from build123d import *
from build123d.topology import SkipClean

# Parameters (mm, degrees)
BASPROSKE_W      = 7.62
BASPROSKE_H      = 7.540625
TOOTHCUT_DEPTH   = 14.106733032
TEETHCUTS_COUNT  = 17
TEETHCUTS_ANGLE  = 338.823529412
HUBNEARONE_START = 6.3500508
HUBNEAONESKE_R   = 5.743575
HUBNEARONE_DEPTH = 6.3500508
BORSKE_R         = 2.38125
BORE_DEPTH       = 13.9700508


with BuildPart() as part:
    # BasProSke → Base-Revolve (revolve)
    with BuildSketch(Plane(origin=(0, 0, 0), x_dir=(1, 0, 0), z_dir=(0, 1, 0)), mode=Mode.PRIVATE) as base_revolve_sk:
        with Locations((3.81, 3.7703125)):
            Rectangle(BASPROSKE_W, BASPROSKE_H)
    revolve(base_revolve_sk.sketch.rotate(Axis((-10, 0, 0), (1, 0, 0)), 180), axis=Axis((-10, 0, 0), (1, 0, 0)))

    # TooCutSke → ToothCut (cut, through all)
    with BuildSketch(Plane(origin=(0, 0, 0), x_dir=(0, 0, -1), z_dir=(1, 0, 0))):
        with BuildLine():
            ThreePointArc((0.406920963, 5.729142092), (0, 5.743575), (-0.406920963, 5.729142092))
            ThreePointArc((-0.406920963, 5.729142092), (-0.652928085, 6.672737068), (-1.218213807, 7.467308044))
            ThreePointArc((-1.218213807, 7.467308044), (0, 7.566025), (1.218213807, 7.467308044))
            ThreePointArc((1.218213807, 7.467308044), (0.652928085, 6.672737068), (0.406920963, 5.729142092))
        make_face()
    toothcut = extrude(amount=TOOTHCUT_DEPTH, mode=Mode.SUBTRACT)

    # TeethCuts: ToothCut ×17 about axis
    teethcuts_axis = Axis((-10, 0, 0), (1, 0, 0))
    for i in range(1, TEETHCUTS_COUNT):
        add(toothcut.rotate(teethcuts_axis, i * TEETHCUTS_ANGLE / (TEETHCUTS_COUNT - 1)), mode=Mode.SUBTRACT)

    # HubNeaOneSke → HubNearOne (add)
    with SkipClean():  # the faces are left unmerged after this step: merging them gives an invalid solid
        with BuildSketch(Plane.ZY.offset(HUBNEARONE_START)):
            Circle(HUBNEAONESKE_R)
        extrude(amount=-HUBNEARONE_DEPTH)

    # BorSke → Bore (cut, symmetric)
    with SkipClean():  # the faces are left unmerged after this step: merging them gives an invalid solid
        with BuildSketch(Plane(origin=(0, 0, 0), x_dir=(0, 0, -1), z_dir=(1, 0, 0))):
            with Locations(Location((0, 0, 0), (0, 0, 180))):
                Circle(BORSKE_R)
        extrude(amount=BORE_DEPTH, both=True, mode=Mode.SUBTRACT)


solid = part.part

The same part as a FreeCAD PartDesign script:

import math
import FreeCAD as App
import Part
import Sketcher
Q = App.Units.Quantity


def add_polygon(sketch, points):
    """Adds a closed chain of lines whose ends are joined by coincident constraints."""
    first, n = sketch.GeometryCount, len(points)
    for a, b in zip(points, points[1:] + points[:1]):
        sketch.addGeometry(Part.LineSegment(App.Vector(*a, 0), App.Vector(*b, 0)), False)
    for i in range(n):
        sketch.addConstraint(Sketcher.Constraint("Coincident", first + i, 2, first + (i + 1) % n, 1))

doc = App.newDocument("Part")
body = doc.addObject("PartDesign::Body", "Body")

sketch1 = body.newObject("Sketcher::SketchObject", "Sketch")
sketch1.AttachmentSupport = (doc.getObject("XZ_Plane"), [""])
sketch1.MapMode = "FlatFace"
add_polygon(sketch1, [(0, -8), (0, 0), (8, 0), (8, -8)])
sketch1.addConstraint([
    Sketcher.Constraint("Vertical", 0),
    Sketcher.Constraint("Horizontal", 1),
    Sketcher.Constraint("Vertical", 2),
    Sketcher.Constraint("Horizontal", 3),
    Sketcher.Constraint("Coincident", 0, 2, -1, 1),
    Sketcher.Constraint("DistanceX", 1, 1, 1, 2, Q("0.3 in")),
    Sketcher.Constraint("DistanceY", 0, 1, 0, 2, Q("0.296875 in")),
])
revolution = body.newObject("PartDesign::Revolution", "Revolution")
revolution.Profile = sketch1
revolution.ReferenceAxis = (sketch1, ["H_Axis"])
revolution.Angle = 360

sketch2 = body.newObject("Sketcher::SketchObject", "Sketch001")
sketch2.AttachmentSupport = (doc.getObject("YZ_Plane"), [""])
sketch2.MapMode = "FlatFace"
sketch2.addGeometry([
    Part.ArcOfCircle(Part.Circle(App.Vector(0, 0, 0), App.Vector(0, 0, 1), 5.7), math.radians(-4.06), math.radians(4.06)),
    Part.ArcOfCircle(Part.Circle(App.Vector(5.5, -3.1, 0), App.Vector(0, 0, 1), 2.7), math.radians(44), math.radians(86)),
    Part.ArcOfCircle(Part.Circle(App.Vector(0, 0, 0), App.Vector(0, 0, 1), 7.6), math.radians(-9.27), math.radians(9.27)),
    Part.ArcOfCircle(Part.Circle(App.Vector(5.5, 3.1, 0), App.Vector(0, 0, 1), 2.7), math.radians(-86), math.radians(-44)),
], False)
sketch2.addConstraint([
    Sketcher.Constraint("Coincident", 0, 1, 1, 2),
    Sketcher.Constraint("Coincident", 1, 1, 2, 1),
    Sketcher.Constraint("Coincident", 2, 2, 3, 2),
    Sketcher.Constraint("Coincident", 3, 1, 0, 2),
    Sketcher.Constraint("Coincident", 0, 3, -1, 1),
    Sketcher.Constraint("Coincident", 2, 3, -1, 1),
    Sketcher.Constraint("Equal", 1, 3),
    Sketcher.Constraint("Symmetric", 1, 3, 3, 3, -1),
    Sketcher.Constraint("Radius", 1, 2.69875),
    Sketcher.Constraint("Radius", 0, 5.743575),
    Sketcher.Constraint("Radius", 2, 7.566025),
    Sketcher.Constraint("DistanceY", 1, 3, -1, 1, 3.09841),
    Sketcher.Constraint("DistanceY", 0, 1, -1, 1, 0.406921),
])
pocket1 = body.newObject("PartDesign::Pocket", "Pocket")
pocket1.Profile = sketch2
pocket1.Type = "ThroughAll"
pocket1.Reversed = True
doc.recompute()

polarpattern = body.newObject("PartDesign::PolarPattern", "PolarPattern")
polarpattern.Originals = [pocket1]
polarpattern.Axis = (doc.getObject("X_Axis"), [""])
polarpattern.Angle = 360
polarpattern.Occurrences = 17
body.Tip = polarpattern

sketch3 = body.newObject("Sketcher::SketchObject", "Sketch002")
sketch3.AttachmentSupport = (doc.getObject("YZ_Plane"), [""])
sketch3.MapMode = "FlatFace"
sketch3.AttachmentOffset = App.Placement(App.Vector(0, 0, -6.350051), App.Rotation())
sketch3.addGeometry(Part.Circle(App.Vector(0, 0, 0), App.Vector(0, 0, 1), 6), False)
sketch3.addConstraint([
    Sketcher.Constraint("Coincident", 0, 3, -1, 1),
    Sketcher.Constraint("Diameter", 0, 11.48715),
])
pad1 = body.newObject("PartDesign::Pad", "Pad")
pad1.Profile = sketch3
pad1.Length = 6.350051

sketch4 = body.newObject("Sketcher::SketchObject", "Sketch003")
sketch4.AttachmentSupport = (doc.getObject("YZ_Plane"), [""])
sketch4.MapMode = "FlatFace"
sketch4.addGeometry(Part.Circle(App.Vector(0, 0, 0), App.Vector(0, 0, 1), 2.4), False)
sketch4.addConstraint([
    Sketcher.Constraint("Coincident", 0, 3, -1, 1),
    Sketcher.Constraint("Diameter", 0, Q("0.1875 in")),
])
pocket2 = body.newObject("PartDesign::Pocket", "Pocket001")
pocket2.Profile = sketch4
pocket2.Length = 27.940102
pocket2.Midplane = True

doc.recompute()
